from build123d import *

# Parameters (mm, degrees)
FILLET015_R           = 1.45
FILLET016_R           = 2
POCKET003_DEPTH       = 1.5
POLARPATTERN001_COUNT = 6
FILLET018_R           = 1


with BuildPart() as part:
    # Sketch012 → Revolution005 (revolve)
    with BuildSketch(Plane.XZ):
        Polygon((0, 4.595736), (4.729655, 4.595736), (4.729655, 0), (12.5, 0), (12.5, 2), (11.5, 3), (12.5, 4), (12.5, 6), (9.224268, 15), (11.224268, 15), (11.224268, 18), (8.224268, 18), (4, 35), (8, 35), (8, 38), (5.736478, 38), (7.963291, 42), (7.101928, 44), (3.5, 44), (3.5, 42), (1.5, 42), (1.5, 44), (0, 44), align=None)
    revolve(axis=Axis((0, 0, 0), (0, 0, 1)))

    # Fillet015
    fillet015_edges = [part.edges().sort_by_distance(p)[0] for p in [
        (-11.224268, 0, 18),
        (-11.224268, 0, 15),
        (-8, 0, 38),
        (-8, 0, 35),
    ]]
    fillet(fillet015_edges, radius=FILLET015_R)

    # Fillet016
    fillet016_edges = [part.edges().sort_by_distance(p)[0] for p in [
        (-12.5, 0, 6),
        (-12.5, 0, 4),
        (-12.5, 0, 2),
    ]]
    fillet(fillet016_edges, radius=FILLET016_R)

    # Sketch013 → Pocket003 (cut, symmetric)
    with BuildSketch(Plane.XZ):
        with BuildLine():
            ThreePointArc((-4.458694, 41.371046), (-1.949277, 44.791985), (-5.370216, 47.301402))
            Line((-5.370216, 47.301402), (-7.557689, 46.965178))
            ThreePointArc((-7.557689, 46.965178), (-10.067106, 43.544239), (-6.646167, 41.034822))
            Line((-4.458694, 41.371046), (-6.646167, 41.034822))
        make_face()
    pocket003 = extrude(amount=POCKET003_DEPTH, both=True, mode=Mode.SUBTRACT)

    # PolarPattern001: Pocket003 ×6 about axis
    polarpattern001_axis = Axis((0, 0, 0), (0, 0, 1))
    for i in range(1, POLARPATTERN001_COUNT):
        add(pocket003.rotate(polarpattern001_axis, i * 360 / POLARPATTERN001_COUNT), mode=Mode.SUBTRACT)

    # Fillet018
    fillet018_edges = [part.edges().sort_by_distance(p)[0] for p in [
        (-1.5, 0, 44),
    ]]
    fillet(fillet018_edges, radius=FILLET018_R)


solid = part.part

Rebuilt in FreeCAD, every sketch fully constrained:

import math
import FreeCAD as App
import Part
import Sketcher

V = App.Vector
Q = App.Units.Quantity


def edges_at(feature, points):
    """Names of the edges that pass closest to the given points."""
    edges = feature.Shape.Edges
    near = lambda p: min(range(len(edges)), key=lambda i: edges[i].distToShape(Part.Vertex(*p))[0])
    return sorted({f"Edge{near(p) + 1}" for p in points})


def add_polygon(sketch, points):
    """Adds a closed chain of lines whose ends are joined by coincident constraints."""
    first, n = sketch.GeometryCount, len(points)
    for a, b in zip(points, points[1:] + points[:1]):
        sketch.addGeometry(Part.LineSegment(App.Vector(*a, 0), App.Vector(*b, 0)), False)
    for i in range(n):
        sketch.addConstraint(Sketcher.Constraint("Coincident", first + i, 2, first + (i + 1) % n, 1))

doc = App.newDocument("Part")
body = doc.addObject("PartDesign::Body", "Body")

# Sketch on XZ plane
sketch1 = doc.addObject("Sketcher::SketchObject", "Sketch")
body.addObject(sketch1)
sketch1.AttachmentSupport = (doc.XZ_Plane, [""])
sketch1.MapMode = "FlatFace"
add_polygon(sketch1, [(0, 4.595736), (4.729655, 4.595736), (4.729655, 0), (12.5, 0), (12.5, 2), (11.5, 3), (12.5, 4), (12.5, 6), (9.224268, 15), (11.224268, 15), (11.224268, 18), (8.224268, 18), (4, 35), (8, 35), (8, 38), (5.736478, 38), (7.963291, 42), (7.101928, 44), (3.5, 44), (3.5, 42), (1.5, 42), (1.5, 44), (0, 44)])  # lines 0-22
sketch1.addConstraint([
    Sketcher.Constraint("Horizontal", 0),
    Sketcher.Constraint("Vertical", 1),
    Sketcher.Constraint("Horizontal", 2),
    Sketcher.Constraint("Vertical", 3),
    Sketcher.Constraint("Vertical", 6),
    Sketcher.Constraint("Horizontal", 8),
    Sketcher.Constraint("Vertical", 9),
    Sketcher.Constraint("Horizontal", 10),
    Sketcher.Constraint("Horizontal", 12),
    Sketcher.Constraint("Vertical", 13),
    Sketcher.Constraint("Horizontal", 14),
    Sketcher.Constraint("Horizontal", 17),
    Sketcher.Constraint("Vertical", 18),
    Sketcher.Constraint("Horizontal", 19),
    Sketcher.Constraint("Vertical", 20),
    Sketcher.Constraint("Horizontal", 21),
    Sketcher.Constraint("Vertical", 22),
    Sketcher.Constraint("PointOnObject", 1, 2, -1),
    Sketcher.Constraint("PointOnObject", 21, 2, -2),
    Sketcher.Constraint("Perpendicular", 4, 5),
    Sketcher.Constraint("Horizontal", 15, 2, 18, 2),
    Sketcher.Constraint("Horizontal", 17, 2, 20, 2),
    Sketcher.Constraint("Vertical", 3, 2, 5, 2),
    Sketcher.Constraint("Equal", 8, 19),
    Sketcher.Constraint("Equal", 19, 3),
    Sketcher.Constraint("Equal", 3, 6),
    Sketcher.Constraint("Equal", 10, 9),
    Sketcher.Constraint("Equal", 9, 13),
    Sketcher.Constraint("Equal", 6, 18),
    Sketcher.Constraint("Equal", 4, 5),
    Sketcher.Constraint("DistanceX", 8, 1, 8, 2, Q("2 mm")),
    Sketcher.Constraint("DistanceX", 10, 2, 10, 1, Q("3 mm")),
    Sketcher.Constraint("DistanceX", 12, 1, 12, 2, Q("4 mm")),
    Sketcher.Constraint("Angle", 7, Q("109.999999 deg")),
    Sketcher.Constraint("DistanceX", 21, 2, 21, 1, Q("1.5 mm")),
    Sketcher.Constraint("DistanceY", -1, 1, 4, 2, Q("3 mm")),
    Sketcher.Constraint("DistanceY", -1, 1, 7, 2, Q("15 mm")),
    Sketcher.Constraint("DistanceX", -1, 1, 11, 2, Q("4 mm")),
    Sketcher.Constraint("DistanceY", -1, 1, 11, 2, Q("35 mm")),
    Sketcher.Constraint("DistanceY", -1, 1, 15, 2, Q("42 mm")),
    Sketcher.Constraint("DistanceX", -1, 1, 2, 2, Q("12.5 mm")),
    Sketcher.Constraint("Distance", 16, Q("2.177601 mm")),
    Sketcher.Constraint("DistanceX", 14, 2, 14, 1, Q("2.263522 mm")),
    Sketcher.Constraint("DistanceX", 17, 2, 17, 1, Q("3.601928 mm")),
    Sketcher.Constraint("DistanceX", 0, 1, 0, 2, Q("4.729655 mm")),
    Sketcher.Constraint("DistanceY", 1, 2, 1, 1, Q("4.595736 mm")),
])
revolution = doc.addObject("PartDesign::Revolution", "Revolution")
body.addObject(revolution)
revolution.Profile = sketch1
revolution.ReferenceAxis = (sketch1, ["V_Axis"])
revolution.Angle = 360
doc.recompute()

fillet = doc.addObject("PartDesign::Fillet", "Fillet")
body.addObject(fillet)
fillet.Base = (revolution, edges_at(revolution, [
    (-11.224, 0, 18),
    (-11.224, 0, 15),
    (-8, 0, 38),
    (-8, 0, 35),
]))
fillet.Radius = 1.45
doc.recompute()

fillet2 = doc.addObject("PartDesign::Fillet", "Fillet001")
body.addObject(fillet2)
fillet2.Base = (fillet, edges_at(fillet, [(-12.5, 0, 6), (-12.5, 0, 4), (-12.5, 0, 2)]))
fillet2.Radius = 2

# Sketch on XZ plane
sketch2 = doc.addObject("Sketcher::SketchObject", "Sketch001")
body.addObject(sketch2)
sketch2.AttachmentSupport = (doc.XZ_Plane, [""])
sketch2.MapMode = "FlatFace"
sketch2.addGeometry([
    Part.ArcOfCircle(Part.Circle(V(-4.914455, 44.336224, 0), V(0, 0, 1), 3), math.radians(-81.26177), math.radians(98.73823)),
    Part.LineSegment(V(-5.370216, 47.301402, 0), V(-7.557689, 46.965178, 0)),
    Part.ArcOfCircle(Part.Circle(V(-7.101928, 44, 0), V(0, 0, 1), 3), math.radians(98.73823), math.radians(278.73823)),
    Part.LineSegment(V(-6.646167, 41.034822, 0), V(-4.458694, 41.371046, 0)),
], False)
sketch2.addConstraint([
    Sketcher.Constraint("Tangent", 0, 2, 1, 1),
    Sketcher.Constraint("Tangent", 1, 2, 2, 1),
    Sketcher.Constraint("Tangent", 2, 2, 3, 1),
    Sketcher.Constraint("Tangent", 3, 2, 0, 1),
    Sketcher.Constraint("Equal", 0, 2),
    Sketcher.Constraint("Radius", 0, Q("3 mm")),
    Sketcher.Constraint("DistanceY", -1, 1, 2, 3, Q("44 mm")),
    Sketcher.Constraint("Distance", 1, Q("2.213162 mm")),
    Sketcher.Constraint("DistanceX", 1, 2, -1, 1, Q("7.557689 mm")),
    Sketcher.Constraint("DistanceY", -1, 1, 1, 2, Q("46.965178 mm")),
])
pocket1 = doc.addObject("PartDesign::Pocket", "Pocket")
body.addObject(pocket1)
pocket1.Profile = sketch2
pocket1.Length = 3
pocket1.Midplane = True
doc.recompute()

polarpattern = doc.addObject("PartDesign::PolarPattern", "PolarPattern")
body.addObject(polarpattern)
polarpattern.Originals = [pocket1]
polarpattern.Axis = (doc.Z_Axis, [""])
polarpattern.Angle = 360
polarpattern.Occurrences = 6
body.Tip = polarpattern
doc.recompute()

fillet3 = doc.addObject("PartDesign::Fillet", "Fillet002")
body.addObject(fillet3)
fillet3.Base = (polarpattern, edges_at(polarpattern, [(-1.5, 0, 44)]))
fillet3.Radius = 1

doc.recompute()
